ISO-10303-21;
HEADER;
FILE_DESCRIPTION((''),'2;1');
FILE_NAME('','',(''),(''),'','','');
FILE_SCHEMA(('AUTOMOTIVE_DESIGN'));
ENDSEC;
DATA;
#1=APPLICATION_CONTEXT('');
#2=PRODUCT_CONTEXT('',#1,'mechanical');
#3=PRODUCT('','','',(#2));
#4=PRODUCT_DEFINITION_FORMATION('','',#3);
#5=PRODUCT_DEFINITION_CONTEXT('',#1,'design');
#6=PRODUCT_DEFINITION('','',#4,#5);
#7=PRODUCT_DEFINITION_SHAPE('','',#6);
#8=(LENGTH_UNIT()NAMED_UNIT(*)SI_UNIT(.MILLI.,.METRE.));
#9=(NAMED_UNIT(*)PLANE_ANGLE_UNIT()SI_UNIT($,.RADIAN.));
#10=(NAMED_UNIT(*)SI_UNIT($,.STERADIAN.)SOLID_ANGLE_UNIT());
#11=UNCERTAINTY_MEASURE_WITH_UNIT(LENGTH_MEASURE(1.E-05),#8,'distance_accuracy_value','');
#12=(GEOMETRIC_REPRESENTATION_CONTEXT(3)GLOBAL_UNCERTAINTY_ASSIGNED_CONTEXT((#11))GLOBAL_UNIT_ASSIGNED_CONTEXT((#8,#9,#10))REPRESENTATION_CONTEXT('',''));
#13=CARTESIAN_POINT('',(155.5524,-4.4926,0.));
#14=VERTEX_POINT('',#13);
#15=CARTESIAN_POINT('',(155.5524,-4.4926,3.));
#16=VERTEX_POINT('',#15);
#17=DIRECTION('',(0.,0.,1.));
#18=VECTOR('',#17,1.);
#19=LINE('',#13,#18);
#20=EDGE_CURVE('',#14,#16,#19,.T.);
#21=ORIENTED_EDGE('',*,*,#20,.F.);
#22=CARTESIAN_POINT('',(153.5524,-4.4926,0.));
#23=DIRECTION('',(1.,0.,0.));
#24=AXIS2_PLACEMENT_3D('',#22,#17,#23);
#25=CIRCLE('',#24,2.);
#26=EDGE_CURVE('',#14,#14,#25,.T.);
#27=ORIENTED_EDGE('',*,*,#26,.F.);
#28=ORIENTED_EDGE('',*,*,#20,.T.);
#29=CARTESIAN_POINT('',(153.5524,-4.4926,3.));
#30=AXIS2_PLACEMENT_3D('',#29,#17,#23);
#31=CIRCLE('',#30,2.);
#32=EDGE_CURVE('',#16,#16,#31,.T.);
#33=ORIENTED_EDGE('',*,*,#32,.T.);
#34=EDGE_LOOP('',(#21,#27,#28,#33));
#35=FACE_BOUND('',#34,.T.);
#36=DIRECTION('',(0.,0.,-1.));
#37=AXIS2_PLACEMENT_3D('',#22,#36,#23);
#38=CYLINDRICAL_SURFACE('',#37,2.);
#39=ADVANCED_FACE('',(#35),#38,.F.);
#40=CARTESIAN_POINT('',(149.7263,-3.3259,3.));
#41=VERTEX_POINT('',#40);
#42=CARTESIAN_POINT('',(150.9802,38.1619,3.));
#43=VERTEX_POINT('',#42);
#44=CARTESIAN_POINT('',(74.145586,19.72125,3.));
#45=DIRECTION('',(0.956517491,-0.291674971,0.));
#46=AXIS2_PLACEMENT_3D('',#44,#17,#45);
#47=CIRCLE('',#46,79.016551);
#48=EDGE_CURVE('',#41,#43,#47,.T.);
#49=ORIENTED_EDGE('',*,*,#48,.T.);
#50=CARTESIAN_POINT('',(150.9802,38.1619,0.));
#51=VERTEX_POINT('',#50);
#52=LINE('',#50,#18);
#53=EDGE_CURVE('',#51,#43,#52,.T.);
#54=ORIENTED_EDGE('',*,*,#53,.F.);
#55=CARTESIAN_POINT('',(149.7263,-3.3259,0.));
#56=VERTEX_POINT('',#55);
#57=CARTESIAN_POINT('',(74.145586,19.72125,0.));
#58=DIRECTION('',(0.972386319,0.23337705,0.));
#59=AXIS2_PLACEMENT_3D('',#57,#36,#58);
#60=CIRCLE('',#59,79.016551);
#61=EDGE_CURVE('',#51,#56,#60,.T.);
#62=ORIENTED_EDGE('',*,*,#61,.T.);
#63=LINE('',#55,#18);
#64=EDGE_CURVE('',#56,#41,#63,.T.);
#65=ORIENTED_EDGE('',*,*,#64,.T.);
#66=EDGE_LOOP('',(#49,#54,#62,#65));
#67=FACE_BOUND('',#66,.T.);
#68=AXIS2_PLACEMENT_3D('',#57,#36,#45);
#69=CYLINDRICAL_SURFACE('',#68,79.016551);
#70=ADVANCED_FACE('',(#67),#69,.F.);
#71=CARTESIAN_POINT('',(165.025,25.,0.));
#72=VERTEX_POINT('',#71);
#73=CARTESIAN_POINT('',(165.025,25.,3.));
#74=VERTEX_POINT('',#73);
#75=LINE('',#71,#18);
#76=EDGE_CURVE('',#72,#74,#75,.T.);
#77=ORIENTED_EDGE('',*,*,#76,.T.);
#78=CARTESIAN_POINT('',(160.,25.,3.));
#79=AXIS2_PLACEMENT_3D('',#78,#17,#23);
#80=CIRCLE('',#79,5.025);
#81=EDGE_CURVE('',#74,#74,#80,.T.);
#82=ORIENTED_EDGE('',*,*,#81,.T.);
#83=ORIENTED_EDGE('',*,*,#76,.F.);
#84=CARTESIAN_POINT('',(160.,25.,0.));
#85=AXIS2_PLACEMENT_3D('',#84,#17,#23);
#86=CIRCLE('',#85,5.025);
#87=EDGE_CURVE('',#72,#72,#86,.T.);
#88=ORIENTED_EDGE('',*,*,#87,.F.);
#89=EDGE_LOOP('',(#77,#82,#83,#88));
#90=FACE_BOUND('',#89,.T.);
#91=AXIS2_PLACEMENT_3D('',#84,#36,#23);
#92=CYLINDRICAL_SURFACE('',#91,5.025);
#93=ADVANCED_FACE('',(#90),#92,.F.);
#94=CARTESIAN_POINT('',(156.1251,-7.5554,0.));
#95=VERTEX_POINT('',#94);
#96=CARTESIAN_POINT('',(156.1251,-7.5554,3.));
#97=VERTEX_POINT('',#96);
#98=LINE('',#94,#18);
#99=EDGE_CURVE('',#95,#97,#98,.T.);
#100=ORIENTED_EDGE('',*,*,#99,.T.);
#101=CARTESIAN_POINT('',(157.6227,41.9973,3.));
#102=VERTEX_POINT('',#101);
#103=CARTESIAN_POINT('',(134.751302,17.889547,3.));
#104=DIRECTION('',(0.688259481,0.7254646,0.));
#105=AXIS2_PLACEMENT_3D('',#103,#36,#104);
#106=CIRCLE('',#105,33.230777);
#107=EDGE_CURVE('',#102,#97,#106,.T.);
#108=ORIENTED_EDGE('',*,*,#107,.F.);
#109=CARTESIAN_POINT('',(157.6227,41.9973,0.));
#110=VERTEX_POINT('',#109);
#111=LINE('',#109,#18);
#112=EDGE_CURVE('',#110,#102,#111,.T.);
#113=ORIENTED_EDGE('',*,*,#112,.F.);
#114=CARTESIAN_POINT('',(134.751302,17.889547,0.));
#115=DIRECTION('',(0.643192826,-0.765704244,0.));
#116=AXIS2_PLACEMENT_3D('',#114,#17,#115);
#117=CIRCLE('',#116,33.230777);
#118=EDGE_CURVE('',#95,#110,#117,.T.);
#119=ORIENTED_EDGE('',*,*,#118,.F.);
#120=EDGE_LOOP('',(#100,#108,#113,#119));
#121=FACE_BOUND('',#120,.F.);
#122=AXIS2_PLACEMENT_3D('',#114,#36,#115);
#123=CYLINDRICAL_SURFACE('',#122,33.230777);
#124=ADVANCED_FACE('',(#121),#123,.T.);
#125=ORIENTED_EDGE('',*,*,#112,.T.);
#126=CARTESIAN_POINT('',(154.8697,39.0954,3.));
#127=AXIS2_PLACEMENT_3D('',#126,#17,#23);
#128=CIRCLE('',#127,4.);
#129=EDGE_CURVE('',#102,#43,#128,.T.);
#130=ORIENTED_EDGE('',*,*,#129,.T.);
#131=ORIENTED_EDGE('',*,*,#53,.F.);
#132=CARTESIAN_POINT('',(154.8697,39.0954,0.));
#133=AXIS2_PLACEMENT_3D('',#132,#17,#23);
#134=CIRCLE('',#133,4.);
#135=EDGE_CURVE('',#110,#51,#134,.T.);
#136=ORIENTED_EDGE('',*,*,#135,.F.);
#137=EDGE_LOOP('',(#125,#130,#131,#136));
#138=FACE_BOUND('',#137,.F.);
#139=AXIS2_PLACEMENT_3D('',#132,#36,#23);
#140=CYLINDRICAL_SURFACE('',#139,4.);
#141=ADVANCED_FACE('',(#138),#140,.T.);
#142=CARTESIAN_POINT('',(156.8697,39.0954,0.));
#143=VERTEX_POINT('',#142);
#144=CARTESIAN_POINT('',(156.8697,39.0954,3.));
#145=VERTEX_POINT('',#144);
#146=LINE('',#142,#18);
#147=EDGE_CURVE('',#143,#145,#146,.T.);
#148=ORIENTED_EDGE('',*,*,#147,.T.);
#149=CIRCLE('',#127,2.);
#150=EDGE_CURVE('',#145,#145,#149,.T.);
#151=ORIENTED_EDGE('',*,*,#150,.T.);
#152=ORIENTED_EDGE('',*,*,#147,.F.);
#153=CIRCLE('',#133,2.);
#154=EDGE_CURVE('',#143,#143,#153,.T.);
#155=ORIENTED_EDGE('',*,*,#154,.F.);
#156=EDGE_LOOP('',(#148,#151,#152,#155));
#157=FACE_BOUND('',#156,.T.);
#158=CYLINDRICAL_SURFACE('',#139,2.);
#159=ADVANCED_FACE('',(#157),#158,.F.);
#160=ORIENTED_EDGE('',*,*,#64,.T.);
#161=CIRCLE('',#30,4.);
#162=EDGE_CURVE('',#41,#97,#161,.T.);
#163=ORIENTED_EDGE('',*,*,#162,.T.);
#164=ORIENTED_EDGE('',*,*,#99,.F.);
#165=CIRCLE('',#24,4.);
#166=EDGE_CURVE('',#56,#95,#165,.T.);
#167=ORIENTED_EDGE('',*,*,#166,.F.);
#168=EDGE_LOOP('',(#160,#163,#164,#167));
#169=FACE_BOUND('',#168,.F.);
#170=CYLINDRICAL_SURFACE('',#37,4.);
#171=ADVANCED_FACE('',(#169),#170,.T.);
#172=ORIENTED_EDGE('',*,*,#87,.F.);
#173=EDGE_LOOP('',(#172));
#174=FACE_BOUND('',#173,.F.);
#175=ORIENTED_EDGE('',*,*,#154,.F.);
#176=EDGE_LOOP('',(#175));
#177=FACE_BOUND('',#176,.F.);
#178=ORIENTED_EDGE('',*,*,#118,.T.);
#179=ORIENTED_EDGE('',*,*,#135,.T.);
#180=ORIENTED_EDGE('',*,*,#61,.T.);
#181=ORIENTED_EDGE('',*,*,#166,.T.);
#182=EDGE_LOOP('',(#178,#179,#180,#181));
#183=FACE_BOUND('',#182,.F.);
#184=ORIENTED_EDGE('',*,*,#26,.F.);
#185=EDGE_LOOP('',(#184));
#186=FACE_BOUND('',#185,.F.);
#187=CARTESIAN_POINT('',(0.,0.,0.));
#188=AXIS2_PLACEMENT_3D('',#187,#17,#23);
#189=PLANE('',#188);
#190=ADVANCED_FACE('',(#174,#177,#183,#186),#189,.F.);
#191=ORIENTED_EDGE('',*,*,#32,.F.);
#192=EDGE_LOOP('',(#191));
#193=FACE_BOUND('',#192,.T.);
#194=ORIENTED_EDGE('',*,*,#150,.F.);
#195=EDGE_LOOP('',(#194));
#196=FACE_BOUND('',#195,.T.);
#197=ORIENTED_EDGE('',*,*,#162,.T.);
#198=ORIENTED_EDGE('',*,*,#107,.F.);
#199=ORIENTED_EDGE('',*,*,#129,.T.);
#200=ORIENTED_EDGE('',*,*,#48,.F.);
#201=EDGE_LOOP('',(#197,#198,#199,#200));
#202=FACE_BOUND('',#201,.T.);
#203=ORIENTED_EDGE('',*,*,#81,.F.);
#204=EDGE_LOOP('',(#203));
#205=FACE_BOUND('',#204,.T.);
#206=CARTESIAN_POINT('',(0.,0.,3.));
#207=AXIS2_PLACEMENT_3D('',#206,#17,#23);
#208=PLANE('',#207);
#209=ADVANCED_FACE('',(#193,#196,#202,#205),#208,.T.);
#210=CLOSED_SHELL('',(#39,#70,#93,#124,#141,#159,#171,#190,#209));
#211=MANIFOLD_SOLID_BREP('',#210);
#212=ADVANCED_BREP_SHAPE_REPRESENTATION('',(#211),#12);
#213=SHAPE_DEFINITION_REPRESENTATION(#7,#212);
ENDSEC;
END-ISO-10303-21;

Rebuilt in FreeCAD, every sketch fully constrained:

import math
import FreeCAD as App
import Part
import Sketcher
Q = App.Units.Quantity

doc = App.newDocument("Part")
params = doc.addObject("Spreadsheet::Sheet", "Params")
for row, (alias, value) in enumerate([
    ("sketch1_radius", "4 mm"),
    ("sketch1_diameter", "10.05 mm"),
    ("sketch1_diameter2", "4 mm"),
    ("pad1_length", "3 mm"),
], start=1):
    params.set(f"A{row}", alias)
    params.set(f"B{row}", "=" + value)
    params.setAlias(f"B{row}", alias)

body = doc.addObject("PartDesign::Body", "Body")

sketch1 = doc.addObject("Sketcher::SketchObject", "Sketch")
body.addObject(sketch1)
sketch1.AttachmentSupport = (doc.XY_Plane, [""])
sketch1.MapMode = "FlatFace"
sketch1.addGeometry([
    Part.ArcOfCircle(Part.Circle(App.Vector(154.9, 39.1, 0), App.Vector(0, 0, 1), 4), math.radians(47), math.radians(193)),
    Part.ArcOfCircle(Part.Circle(App.Vector(74.1, 19.7, 0), App.Vector(0, 0, 1), 79), math.radians(-17), math.radians(13)),
    Part.ArcOfCircle(Part.Circle(App.Vector(153.6, -4.5, 0), App.Vector(0, 0, 1), 4), math.radians(163), math.radians(310)),
    Part.ArcOfCircle(Part.Circle(App.Vector(134.8, 17.9, 0), App.Vector(0, 0, 1), 33.2), math.radians(-50), math.radians(47)),
    Part.Circle(App.Vector(154.9, 39.1, 0), App.Vector(0, 0, 1), 2),
    Part.Circle(App.Vector(160, 25, 0), App.Vector(0, 0, 1), 5),
    Part.Circle(App.Vector(153.6, -4.5, 0), App.Vector(0, 0, 1), 2),
], False)
sketch1.addConstraint([
    Sketcher.Constraint("Tangent", 0, 2, 1, 2),
    Sketcher.Constraint("Tangent", 1, 1, 2, 1),
    Sketcher.Constraint("Tangent", 2, 2, 3, 1),
    Sketcher.Constraint("Tangent", 3, 2, 0, 1),
    Sketcher.Constraint("Coincident", 4, 3, 0, 3),
    Sketcher.Constraint("Coincident", 6, 3, 2, 3),
    Sketcher.Constraint("Equal", 0, 2),
    Sketcher.Constraint("Equal", 4, 6),
    Sketcher.Constraint("Radius", 0, Q("4 mm")),
    Sketcher.Constraint("Diameter", 5, Q("10.05 mm")),
    Sketcher.Constraint("Diameter", 4, Q("4 mm")),
    Sketcher.Constraint("DistanceX", -1, 1, 5, 3, Q("160 mm")),
    Sketcher.Constraint("DistanceY", -1, 1, 5, 3, Q("25 mm")),
    Sketcher.Constraint("Radius", 1, Q("79.0156 mm")),
    Sketcher.Constraint("Radius", 3, Q("33.2307 mm")),
    Sketcher.Constraint("DistanceY", -1, 1, 1, 3, Q("19.721 mm")),
    Sketcher.Constraint("DistanceY", -1, 1, 0, 2, Q("38.162 mm")),
    Sketcher.Constraint("DistanceY", 1, 1, -1, 1, Q("3.326 mm")),
    Sketcher.Constraint("DistanceX", -1, 1, 0, 3, Q("154.8697 mm")),
])
sketch1.setExpression("Constraints[8]", "Params.sketch1_radius")
sketch1.setExpression("Constraints[9]", "Params.sketch1_diameter")
sketch1.setExpression("Constraints[10]", "Params.sketch1_diameter2")
pad1 = doc.addObject("PartDesign::Pad", "Pad")
body.addObject(pad1)
pad1.Profile = sketch1
pad1.setExpression("Length", "Params.pad1_length")

doc.recompute()
